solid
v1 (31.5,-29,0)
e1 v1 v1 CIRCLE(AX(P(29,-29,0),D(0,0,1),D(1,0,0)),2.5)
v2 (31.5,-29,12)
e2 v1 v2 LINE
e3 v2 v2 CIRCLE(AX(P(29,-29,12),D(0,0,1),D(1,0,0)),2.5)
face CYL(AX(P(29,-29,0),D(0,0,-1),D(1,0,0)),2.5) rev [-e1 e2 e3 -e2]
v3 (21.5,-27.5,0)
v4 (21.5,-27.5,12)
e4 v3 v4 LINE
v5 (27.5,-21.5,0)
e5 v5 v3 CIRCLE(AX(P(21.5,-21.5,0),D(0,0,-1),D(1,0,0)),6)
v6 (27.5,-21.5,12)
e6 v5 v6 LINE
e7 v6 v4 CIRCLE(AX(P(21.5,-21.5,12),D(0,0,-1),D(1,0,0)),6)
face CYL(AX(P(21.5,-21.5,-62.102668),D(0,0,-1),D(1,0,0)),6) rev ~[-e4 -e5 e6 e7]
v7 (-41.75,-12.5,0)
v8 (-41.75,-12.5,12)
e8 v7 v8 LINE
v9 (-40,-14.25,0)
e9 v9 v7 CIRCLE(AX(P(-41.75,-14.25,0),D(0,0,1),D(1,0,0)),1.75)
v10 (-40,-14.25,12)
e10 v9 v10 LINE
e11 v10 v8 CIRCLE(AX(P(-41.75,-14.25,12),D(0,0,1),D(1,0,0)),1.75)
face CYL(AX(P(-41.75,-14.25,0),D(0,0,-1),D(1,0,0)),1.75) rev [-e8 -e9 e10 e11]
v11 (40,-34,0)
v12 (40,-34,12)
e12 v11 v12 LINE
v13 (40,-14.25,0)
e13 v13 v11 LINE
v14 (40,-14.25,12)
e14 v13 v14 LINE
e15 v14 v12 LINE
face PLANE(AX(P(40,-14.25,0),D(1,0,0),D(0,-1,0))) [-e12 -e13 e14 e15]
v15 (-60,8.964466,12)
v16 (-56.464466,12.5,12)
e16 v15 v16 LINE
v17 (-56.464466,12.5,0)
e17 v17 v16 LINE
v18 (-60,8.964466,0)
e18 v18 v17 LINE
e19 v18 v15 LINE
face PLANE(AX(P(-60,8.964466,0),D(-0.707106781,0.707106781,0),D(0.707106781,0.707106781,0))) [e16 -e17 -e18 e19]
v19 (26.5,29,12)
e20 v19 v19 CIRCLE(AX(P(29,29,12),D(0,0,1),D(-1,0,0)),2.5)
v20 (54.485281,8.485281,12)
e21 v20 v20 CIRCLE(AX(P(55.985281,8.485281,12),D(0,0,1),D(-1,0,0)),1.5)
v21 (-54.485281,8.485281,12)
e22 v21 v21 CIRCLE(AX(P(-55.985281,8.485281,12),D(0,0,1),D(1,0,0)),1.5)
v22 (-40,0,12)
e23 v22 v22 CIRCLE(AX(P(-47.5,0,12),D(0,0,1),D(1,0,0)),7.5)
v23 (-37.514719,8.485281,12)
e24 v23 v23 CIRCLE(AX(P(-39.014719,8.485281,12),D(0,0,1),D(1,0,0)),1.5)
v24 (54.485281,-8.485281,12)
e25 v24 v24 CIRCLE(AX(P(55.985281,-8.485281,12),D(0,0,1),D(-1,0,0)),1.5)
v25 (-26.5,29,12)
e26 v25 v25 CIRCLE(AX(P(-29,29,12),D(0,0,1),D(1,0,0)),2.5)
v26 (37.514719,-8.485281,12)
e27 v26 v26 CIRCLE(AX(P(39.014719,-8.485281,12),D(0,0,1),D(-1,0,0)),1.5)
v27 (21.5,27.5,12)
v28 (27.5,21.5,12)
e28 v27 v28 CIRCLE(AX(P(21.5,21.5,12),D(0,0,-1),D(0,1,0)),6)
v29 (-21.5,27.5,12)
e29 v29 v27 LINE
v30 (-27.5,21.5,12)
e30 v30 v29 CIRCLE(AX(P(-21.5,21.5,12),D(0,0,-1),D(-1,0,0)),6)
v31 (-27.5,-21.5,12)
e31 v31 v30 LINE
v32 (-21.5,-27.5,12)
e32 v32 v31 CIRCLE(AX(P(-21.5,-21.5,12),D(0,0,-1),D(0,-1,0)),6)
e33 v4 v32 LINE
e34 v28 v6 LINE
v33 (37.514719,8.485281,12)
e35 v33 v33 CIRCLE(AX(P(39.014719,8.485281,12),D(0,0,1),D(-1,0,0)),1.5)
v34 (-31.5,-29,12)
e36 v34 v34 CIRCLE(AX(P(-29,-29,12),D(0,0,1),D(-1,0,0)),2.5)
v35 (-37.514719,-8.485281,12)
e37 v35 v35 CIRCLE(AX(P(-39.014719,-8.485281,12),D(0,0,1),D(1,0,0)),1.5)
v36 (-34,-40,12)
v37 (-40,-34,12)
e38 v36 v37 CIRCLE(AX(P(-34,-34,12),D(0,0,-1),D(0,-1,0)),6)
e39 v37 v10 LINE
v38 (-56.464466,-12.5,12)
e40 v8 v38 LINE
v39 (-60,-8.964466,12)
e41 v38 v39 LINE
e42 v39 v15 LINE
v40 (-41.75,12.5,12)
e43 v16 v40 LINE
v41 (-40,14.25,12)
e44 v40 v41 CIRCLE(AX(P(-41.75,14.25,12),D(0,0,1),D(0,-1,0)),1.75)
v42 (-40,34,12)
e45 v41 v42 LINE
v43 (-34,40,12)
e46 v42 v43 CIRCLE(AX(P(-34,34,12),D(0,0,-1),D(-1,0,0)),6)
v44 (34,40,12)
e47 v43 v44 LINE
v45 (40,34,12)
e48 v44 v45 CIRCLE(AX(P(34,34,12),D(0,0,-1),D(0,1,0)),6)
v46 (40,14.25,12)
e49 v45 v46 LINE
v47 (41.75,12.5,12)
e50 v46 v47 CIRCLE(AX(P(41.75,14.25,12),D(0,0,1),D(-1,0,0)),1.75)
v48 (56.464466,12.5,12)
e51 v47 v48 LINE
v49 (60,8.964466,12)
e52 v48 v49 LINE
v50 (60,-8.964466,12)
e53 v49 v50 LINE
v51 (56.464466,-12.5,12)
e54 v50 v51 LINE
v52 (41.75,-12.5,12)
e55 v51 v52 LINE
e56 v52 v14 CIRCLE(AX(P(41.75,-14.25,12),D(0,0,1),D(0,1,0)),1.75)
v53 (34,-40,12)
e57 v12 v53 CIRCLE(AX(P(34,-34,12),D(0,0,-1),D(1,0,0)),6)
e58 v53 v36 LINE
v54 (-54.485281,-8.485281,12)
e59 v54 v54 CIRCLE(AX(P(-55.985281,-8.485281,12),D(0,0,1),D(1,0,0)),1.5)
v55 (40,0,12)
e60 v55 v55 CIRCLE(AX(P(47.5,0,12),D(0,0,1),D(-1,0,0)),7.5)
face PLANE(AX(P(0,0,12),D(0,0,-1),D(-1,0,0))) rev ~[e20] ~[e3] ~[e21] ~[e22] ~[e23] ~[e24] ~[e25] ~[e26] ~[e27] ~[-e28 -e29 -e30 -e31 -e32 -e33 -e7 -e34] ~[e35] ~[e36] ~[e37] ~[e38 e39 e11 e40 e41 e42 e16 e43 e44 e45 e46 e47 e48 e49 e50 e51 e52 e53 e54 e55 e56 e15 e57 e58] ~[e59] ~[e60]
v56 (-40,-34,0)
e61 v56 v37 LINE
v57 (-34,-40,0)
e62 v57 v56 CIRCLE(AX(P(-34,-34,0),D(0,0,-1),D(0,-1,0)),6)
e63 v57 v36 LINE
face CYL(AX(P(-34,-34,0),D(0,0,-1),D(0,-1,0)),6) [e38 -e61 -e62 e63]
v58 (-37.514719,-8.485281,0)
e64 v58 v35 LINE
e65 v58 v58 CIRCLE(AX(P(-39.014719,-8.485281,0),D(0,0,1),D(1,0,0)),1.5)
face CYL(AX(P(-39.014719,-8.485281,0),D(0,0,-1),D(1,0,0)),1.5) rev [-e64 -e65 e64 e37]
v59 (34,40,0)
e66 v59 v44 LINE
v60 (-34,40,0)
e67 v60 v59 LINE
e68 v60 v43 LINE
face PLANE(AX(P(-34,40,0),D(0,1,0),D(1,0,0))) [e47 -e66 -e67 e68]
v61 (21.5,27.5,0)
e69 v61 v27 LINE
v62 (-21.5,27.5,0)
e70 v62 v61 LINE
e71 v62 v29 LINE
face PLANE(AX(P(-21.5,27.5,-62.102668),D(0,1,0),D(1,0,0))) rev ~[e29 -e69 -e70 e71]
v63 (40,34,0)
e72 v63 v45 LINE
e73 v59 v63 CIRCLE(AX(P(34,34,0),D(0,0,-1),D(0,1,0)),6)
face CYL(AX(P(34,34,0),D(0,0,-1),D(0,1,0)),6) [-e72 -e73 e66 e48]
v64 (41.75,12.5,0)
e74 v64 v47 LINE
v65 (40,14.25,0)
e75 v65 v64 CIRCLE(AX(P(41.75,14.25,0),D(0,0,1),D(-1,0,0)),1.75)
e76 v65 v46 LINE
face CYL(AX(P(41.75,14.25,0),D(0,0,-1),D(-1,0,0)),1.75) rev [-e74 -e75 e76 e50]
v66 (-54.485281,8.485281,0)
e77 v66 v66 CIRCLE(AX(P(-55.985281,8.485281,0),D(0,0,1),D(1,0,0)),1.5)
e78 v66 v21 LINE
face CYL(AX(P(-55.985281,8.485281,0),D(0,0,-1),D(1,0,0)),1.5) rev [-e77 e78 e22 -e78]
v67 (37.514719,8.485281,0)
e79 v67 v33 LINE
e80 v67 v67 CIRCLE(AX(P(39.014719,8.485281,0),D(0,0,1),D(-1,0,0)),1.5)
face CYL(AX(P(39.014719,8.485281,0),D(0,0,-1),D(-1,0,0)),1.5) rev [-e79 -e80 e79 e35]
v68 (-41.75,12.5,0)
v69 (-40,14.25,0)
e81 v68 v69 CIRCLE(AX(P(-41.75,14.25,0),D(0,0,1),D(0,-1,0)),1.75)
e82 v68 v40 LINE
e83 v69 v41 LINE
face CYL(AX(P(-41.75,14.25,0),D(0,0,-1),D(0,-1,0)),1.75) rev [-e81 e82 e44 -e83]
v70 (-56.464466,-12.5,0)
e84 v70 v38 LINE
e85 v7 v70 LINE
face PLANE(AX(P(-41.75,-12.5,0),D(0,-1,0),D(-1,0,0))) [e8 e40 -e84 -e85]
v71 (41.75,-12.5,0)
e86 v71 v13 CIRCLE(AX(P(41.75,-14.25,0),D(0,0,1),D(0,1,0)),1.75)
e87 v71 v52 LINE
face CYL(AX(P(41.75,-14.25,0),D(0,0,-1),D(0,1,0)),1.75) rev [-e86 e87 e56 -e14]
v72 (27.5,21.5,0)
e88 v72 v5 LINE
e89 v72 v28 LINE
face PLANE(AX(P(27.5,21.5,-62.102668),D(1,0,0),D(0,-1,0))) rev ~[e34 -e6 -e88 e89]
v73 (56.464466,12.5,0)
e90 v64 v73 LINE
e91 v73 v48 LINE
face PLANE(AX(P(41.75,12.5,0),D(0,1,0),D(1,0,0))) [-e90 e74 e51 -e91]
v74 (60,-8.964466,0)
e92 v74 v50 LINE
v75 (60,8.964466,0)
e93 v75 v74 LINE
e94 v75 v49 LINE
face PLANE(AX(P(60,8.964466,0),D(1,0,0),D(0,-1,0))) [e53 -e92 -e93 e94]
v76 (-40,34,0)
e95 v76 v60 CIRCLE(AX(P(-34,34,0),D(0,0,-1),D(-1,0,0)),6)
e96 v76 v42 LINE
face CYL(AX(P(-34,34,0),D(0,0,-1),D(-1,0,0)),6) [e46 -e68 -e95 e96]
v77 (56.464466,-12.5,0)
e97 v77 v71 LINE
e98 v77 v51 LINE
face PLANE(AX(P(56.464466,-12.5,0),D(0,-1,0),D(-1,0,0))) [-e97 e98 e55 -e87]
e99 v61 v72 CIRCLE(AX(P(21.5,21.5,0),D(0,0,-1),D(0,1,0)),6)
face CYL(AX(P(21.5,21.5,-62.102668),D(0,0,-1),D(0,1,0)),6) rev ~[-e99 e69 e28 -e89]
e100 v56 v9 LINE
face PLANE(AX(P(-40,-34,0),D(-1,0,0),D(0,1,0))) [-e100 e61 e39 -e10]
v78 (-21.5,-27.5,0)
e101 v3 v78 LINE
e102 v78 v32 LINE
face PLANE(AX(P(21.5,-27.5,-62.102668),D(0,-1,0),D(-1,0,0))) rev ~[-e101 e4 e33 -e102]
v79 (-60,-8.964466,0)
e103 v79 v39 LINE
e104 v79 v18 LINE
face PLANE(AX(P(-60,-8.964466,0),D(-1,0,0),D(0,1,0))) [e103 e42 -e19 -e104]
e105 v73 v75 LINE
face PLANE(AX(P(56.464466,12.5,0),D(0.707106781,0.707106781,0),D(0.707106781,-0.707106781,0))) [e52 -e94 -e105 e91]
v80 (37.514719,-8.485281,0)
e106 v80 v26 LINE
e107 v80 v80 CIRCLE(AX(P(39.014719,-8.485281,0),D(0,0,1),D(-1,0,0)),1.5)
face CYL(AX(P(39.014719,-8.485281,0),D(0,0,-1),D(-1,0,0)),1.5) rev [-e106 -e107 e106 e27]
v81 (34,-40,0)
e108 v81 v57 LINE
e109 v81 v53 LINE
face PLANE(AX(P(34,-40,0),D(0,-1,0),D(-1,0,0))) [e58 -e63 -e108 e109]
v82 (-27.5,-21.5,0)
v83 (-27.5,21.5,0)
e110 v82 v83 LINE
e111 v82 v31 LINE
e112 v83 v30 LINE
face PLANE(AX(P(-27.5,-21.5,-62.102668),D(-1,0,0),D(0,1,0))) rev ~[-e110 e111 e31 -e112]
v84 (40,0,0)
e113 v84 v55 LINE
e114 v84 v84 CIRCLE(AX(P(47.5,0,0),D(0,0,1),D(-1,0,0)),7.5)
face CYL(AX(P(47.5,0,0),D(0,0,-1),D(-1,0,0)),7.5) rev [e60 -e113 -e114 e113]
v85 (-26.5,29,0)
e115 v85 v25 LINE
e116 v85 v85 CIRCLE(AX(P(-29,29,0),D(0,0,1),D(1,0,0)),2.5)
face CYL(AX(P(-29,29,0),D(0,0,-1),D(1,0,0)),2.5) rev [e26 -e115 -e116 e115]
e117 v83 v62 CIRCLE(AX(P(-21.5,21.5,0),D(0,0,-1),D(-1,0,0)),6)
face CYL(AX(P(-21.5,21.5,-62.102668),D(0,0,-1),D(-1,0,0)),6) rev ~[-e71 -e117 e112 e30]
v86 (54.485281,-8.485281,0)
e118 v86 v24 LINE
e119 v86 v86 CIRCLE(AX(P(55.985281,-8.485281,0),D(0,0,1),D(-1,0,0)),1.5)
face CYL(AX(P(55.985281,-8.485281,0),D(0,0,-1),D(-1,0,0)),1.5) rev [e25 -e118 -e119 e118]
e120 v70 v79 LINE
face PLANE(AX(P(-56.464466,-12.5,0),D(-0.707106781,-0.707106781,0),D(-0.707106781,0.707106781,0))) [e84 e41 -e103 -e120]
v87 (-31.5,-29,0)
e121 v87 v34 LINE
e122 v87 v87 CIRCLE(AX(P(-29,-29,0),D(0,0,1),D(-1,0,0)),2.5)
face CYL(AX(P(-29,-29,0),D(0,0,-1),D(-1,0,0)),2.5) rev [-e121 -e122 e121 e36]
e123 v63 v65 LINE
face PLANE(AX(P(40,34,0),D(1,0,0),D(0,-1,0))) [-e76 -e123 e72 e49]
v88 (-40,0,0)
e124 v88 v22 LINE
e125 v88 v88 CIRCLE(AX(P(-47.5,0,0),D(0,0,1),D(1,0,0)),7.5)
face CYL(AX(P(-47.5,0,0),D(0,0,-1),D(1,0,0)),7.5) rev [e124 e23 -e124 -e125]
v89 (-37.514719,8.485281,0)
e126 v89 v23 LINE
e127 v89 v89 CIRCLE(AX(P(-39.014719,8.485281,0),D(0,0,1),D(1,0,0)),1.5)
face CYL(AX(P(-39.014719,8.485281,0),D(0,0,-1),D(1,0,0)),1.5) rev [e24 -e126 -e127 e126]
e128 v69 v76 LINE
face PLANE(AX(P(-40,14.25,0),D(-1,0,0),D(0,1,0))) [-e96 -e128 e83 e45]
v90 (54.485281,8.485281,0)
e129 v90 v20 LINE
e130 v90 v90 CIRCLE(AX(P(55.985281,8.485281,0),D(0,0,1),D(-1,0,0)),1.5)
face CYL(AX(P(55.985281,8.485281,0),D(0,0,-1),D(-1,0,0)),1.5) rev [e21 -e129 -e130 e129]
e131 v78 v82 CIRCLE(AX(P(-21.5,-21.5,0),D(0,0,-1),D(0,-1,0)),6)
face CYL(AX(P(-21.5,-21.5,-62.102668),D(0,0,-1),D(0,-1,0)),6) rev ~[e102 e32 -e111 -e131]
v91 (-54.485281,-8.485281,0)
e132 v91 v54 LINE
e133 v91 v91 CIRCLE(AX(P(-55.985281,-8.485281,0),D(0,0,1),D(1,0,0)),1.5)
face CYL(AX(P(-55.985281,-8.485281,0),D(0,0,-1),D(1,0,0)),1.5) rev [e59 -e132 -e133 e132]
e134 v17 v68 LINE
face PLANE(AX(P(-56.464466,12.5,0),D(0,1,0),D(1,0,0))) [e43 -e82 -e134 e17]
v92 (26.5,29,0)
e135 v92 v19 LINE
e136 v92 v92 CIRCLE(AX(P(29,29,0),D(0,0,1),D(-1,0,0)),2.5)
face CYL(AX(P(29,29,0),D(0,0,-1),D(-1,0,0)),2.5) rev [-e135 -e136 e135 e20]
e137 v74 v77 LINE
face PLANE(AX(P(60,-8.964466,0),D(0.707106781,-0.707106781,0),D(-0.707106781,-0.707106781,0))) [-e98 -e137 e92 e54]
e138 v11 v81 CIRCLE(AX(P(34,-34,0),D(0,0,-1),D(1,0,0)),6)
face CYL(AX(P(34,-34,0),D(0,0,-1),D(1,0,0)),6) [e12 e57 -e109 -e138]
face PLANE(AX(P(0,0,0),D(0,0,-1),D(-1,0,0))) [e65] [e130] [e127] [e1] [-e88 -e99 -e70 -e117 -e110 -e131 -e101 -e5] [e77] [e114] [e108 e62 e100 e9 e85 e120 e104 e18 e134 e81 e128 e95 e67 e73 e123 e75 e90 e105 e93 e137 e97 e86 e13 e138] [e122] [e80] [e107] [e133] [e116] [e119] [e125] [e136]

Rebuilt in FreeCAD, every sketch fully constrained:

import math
import FreeCAD as App
import Part
import Sketcher

V = App.Vector
Q = App.Units.Quantity

doc = App.newDocument("Part")
params = doc.addObject("Spreadsheet::Sheet", "Params")
for row, (alias, value) in enumerate([
    ("sketch1_diameter", "5 mm"),
    ("sketch1_diameter2", "3 mm"),
    ("sketch1_diameter3", "15 mm"),
    ("sketch1_radius", "6 mm"),
    ("sketch1_width", "68 mm"),
    ("pad1_length", "12 mm"),
    ("sketch2_radius", "6 mm"),
    ("sketch2_width", "43 mm"),
], start=1):
    params.set(f"A{row}", alias)
    params.set(f"B{row}", "=" + value)
    params.setAlias(f"B{row}", alias)

body = doc.addObject("PartDesign::Body", "Body")

# Sketch on XY plane
sketch1 = body.newObject("Sketcher::SketchObject", "Sketch")
sketch1.AttachmentSupport = (doc.getObject("XY_Plane"), [""])
sketch1.MapMode = "FlatFace"
sketch1.addGeometry([
    Part.LineSegment(V(-41.75, 12.5, 0), V(-56.464466, 12.5, 0)),  # 0
    Part.LineSegment(V(-56.464466, 12.5, 0), V(-60, 8.964466, 0)),  # 1
    Part.LineSegment(V(-60, 8.964466, 0), V(-60, -8.964466, 0)),  # 2
    Part.LineSegment(V(-60, -8.964466, 0), V(-56.464466, -12.5, 0)),  # 3
    Part.LineSegment(V(-56.464466, -12.5, 0), V(-41.75, -12.5, 0)),  # 4
    Part.ArcOfCircle(Part.Circle(V(-41.75, -14.25, 0), V(0, 0, 1), 1.75), math.radians(0), math.radians(90)),  # 5
    Part.LineSegment(V(-40, -14.25, 0), V(-40, -34, 0)),  # 6
    Part.ArcOfCircle(Part.Circle(V(-34, -34, 0), V(0, 0, 1), 6), math.radians(180), math.radians(270)),  # 7
    Part.LineSegment(V(-34, -40, 0), V(34, -40, 0)),  # 8
    Part.ArcOfCircle(Part.Circle(V(34, -34, 0), V(0, 0, 1), 6), math.radians(-90), math.radians(0)),  # 9
    Part.LineSegment(V(40, -34, 0), V(40, -14.25, 0)),  # 10
    Part.ArcOfCircle(Part.Circle(V(41.75, -14.25, 0), V(0, 0, 1), 1.75), math.radians(90), math.radians(180)),  # 11
    Part.LineSegment(V(41.75, -12.5, 0), V(56.464466, -12.5, 0)),  # 12
    Part.LineSegment(V(56.464466, -12.5, 0), V(60, -8.964466, 0)),  # 13
    Part.LineSegment(V(60, -8.964466, 0), V(60, 8.964466, 0)),  # 14
    Part.LineSegment(V(60, 8.964466, 0), V(56.464466, 12.5, 0)),  # 15
    Part.LineSegment(V(56.464466, 12.5, 0), V(41.75, 12.5, 0)),  # 16
    Part.ArcOfCircle(Part.Circle(V(41.75, 14.25, 0), V(0, 0, 1), 1.75), math.radians(180), math.radians(270)),  # 17
    Part.LineSegment(V(40, 14.25, 0), V(40, 34, 0)),  # 18
    Part.ArcOfCircle(Part.Circle(V(34, 34, 0), V(0, 0, 1), 6), math.radians(0), math.radians(90)),  # 19
    Part.LineSegment(V(34, 40, 0), V(-34, 40, 0)),  # 20
    Part.ArcOfCircle(Part.Circle(V(-34, 34, 0), V(0, 0, 1), 6), math.radians(90), math.radians(180)),  # 21
    Part.LineSegment(V(-40, 34, 0), V(-40, 14.25, 0)),  # 22
    Part.ArcOfCircle(Part.Circle(V(-41.75, 14.25, 0), V(0, 0, 1), 1.75), math.radians(-90), math.radians(0)),  # 23
    Part.Circle(V(29, -29, 0), V(0, 0, 1), 2.5),  # 24
    Part.Circle(V(55.985281, -8.485281, 0), V(0, 0, 1), 1.5),  # 25
    Part.Circle(V(39.014719, -8.485281, 0), V(0, 0, 1), 1.5),  # 26
    Part.Circle(V(-29, -29, 0), V(0, 0, 1), 2.5),  # 27
    Part.Circle(V(-39.014719, -8.485281, 0), V(0, 0, 1), 1.5),  # 28
    Part.Circle(V(-55.985281, -8.485281, 0), V(0, 0, 1), 1.5),  # 29
    Part.Circle(V(47.5, 0, 0), V(0, 0, 1), 7.5),  # 30
    Part.Circle(V(55.985281, 8.485281, 0), V(0, 0, 1), 1.5),  # 31
    Part.Circle(V(39.014719, 8.485281, 0), V(0, 0, 1), 1.5),  # 32
    Part.Circle(V(29, 29, 0), V(0, 0, 1), 2.5),  # 33
    Part.Circle(V(-47.5, 0, 0), V(0, 0, 1), 7.5),  # 34
    Part.Circle(V(-39.014719, 8.485281, 0), V(0, 0, 1), 1.5),  # 35
    Part.Circle(V(-55.985281, 8.485281, 0), V(0, 0, 1), 1.5),  # 36
    Part.Circle(V(-29, 29, 0), V(0, 0, 1), 2.5),  # 37
], False)
sketch1.addConstraint([
    Sketcher.Constraint("Coincident", 0, 2, 1, 1),
    Sketcher.Constraint("Coincident", 1, 2, 2, 1),
    Sketcher.Constraint("Coincident", 2, 2, 3, 1),
    Sketcher.Constraint("Coincident", 3, 2, 4, 1),
    Sketcher.Constraint("Tangent", 4, 2, 5, 2),
    Sketcher.Constraint("Tangent", 5, 1, 6, 1),
    Sketcher.Constraint("Tangent", 6, 2, 7, 1),
    Sketcher.Constraint("Tangent", 7, 2, 8, 1),
    Sketcher.Constraint("Tangent", 8, 2, 9, 1),
    Sketcher.Constraint("Tangent", 9, 2, 10, 1),
    Sketcher.Constraint("Tangent", 10, 2, 11, 2),
    Sketcher.Constraint("Tangent", 11, 1, 12, 1),
    Sketcher.Constraint("Coincident", 12, 2, 13, 1),
    Sketcher.Constraint("Coincident", 13, 2, 14, 1),
    Sketcher.Constraint("Coincident", 14, 2, 15, 1),
    Sketcher.Constraint("Coincident", 15, 2, 16, 1),
    Sketcher.Constraint("Tangent", 16, 2, 17, 2),
    Sketcher.Constraint("Tangent", 17, 1, 18, 1),
    Sketcher.Constraint("Tangent", 18, 2, 19, 1),
    Sketcher.Constraint("Tangent", 19, 2, 20, 1),
    Sketcher.Constraint("Tangent", 20, 2, 21, 1),
    Sketcher.Constraint("Tangent", 21, 2, 22, 1),
    Sketcher.Constraint("Tangent", 22, 2, 23, 2),
    Sketcher.Constraint("Tangent", 23, 1, 0, 1),
    Sketcher.Constraint("Horizontal", 0),
    Sketcher.Constraint("Vertical", 2),
    Sketcher.Constraint("Horizontal", 4),
    Sketcher.Constraint("Vertical", 6),
    Sketcher.Constraint("Horizontal", 8),
    Sketcher.Constraint("Vertical", 10),
    Sketcher.Constraint("Horizontal", 12),
    Sketcher.Constraint("Vertical", 14),
    Sketcher.Constraint("Horizontal", 16),
    Sketcher.Constraint("Vertical", 18),
    Sketcher.Constraint("Horizontal", 20),
    Sketcher.Constraint("Vertical", 22),
    Sketcher.Constraint("Equal", 7, 9),
    Sketcher.Constraint("Equal", 5, 11),
    Sketcher.Constraint("Equal", 11, 17),
    Sketcher.Constraint("Equal", 9, 19),
    Sketcher.Constraint("Equal", 19, 21),
    Sketcher.Constraint("Equal", 17, 23),
    Sketcher.Constraint("Equal", 25, 26),
    Sketcher.Constraint("Equal", 24, 27),
    Sketcher.Constraint("Equal", 26, 28),
    Sketcher.Constraint("Equal", 28, 29),
    Sketcher.Constraint("Equal", 29, 31),
    Sketcher.Constraint("Equal", 31, 32),
    Sketcher.Constraint("Equal", 27, 33),
    Sketcher.Constraint("Equal", 30, 34),
    Sketcher.Constraint("Equal", 32, 35),
    Sketcher.Constraint("Equal", 35, 36),
    Sketcher.Constraint("Equal", 33, 37),
    Sketcher.Constraint("Symmetric", 5, 3, 17, 3, -1, 1),
    Sketcher.Constraint("Symmetric", 9, 3, 21, 3, -1, 1),
    Sketcher.Constraint("Symmetric", 29, 3, 31, 3, -1, 1),
    Sketcher.Constraint("Symmetric", 28, 3, 32, 3, -1, 1),
    Sketcher.Constraint("Symmetric", 27, 3, 33, 3, -1, 1),
    Sketcher.Constraint("Symmetric", 30, 3, 34, 3, -1, 1),
    Sketcher.Constraint("Symmetric", 26, 3, 35, 3, -1, 1),
    Sketcher.Constraint("Symmetric", 25, 3, 36, 3, -1, 1),
    Sketcher.Constraint("Symmetric", 24, 3, 37, 3, -1, 1),
    Sketcher.Constraint("Symmetric", 0, 2, 12, 2, -1, 1),
    Sketcher.Constraint("Symmetric", 1, 2, 13, 2, -1, 1),
    Sketcher.Constraint("Symmetric", 5, 3, 11, 3, -2),
    Sketcher.Constraint("Symmetric", 24, 3, 27, 3, -2),
    Sketcher.Constraint("Symmetric", 26, 3, 28, 3, -2),
    Sketcher.Constraint("Symmetric", 25, 3, 29, 3, -2),
    Sketcher.Constraint("PointOnObject", 30, 3, -1),
    Sketcher.Constraint("Perpendicular", 1, 3),
    Sketcher.Constraint("Perpendicular", 13, 15),
    Sketcher.Constraint("Horizontal", 25, 3, 26, 3),
    Sketcher.Constraint("Horizontal", 2, 2, 13, 2),
    Sketcher.Constraint("Horizontal", 1, 2, 14, 2),
    Sketcher.Constraint("Vertical", 0, 2, 3, 2),
    Sketcher.Constraint("Diameter", 24, Q("5 mm")),
    Sketcher.Constraint("Diameter", 25, Q("3 mm")),
    Sketcher.Constraint("Diameter", 30, Q("15 mm")),
    Sketcher.Constraint("Radius", 7, Q("6 mm")),
    Sketcher.Constraint("DistanceX", 8, 1, 8, 2, Q("68 mm")),
    Sketcher.Constraint("Radius", 5, Q("1.75 mm")),
    Sketcher.Constraint("Distance", 1, Q("5 mm")),
    Sketcher.Constraint("DistanceY", 7, 3, -1, 1, Q("34 mm")),
    Sketcher.Constraint("DistanceX", -1, 1, 24, 3, Q("29 mm")),
    Sketcher.Constraint("DistanceY", 24, 3, -1, 1, Q("29 mm")),
    Sketcher.Constraint("DistanceX", 1, 2, -1, 1, Q("60 mm")),
    Sketcher.Constraint("DistanceY", 6, 2, 6, 1, Q("19.75 mm")),
    Sketcher.Constraint("DistanceX", -1, 1, 30, 3, Q("47.5 mm")),
    Sketcher.Constraint("DistanceX", -1, 1, 25, 3, Q("55.985281 mm")),
    Sketcher.Constraint("DistanceY", 25, 3, -1, 1, Q("8.485281 mm")),
    Sketcher.Constraint("DistanceX", -1, 1, 26, 3, Q("39.014719 mm")),
])
sketch1.setExpression("Constraints[75]", "Params.sketch1_diameter")
sketch1.setExpression("Constraints[76]", "Params.sketch1_diameter2")
sketch1.setExpression("Constraints[77]", "Params.sketch1_diameter3")
sketch1.setExpression("Constraints[78]", "Params.sketch1_radius")
sketch1.setExpression("Constraints[79]", "Params.sketch1_width")
pad1 = body.newObject("PartDesign::Pad", "Pad")
pad1.Profile = sketch1
pad1.setExpression("Length", "Params.pad1_length")

# Sketch on XY plane
sketch2 = body.newObject("Sketcher::SketchObject", "Sketch001")
sketch2.AttachmentSupport = (doc.getObject("XY_Plane"), [""])
sketch2.MapMode = "FlatFace"
sketch2.AttachmentOffset = App.Placement(V(0, 0, 12), App.Rotation())
sketch2.addGeometry([
    Part.LineSegment(V(21.5, 27.5, 0), V(-21.5, 27.5, 0)),  # 0
    Part.ArcOfCircle(Part.Circle(V(-21.5, 21.5, 0), V(0, 0, 1), 6), math.radians(90), math.radians(180)),  # 1
    Part.LineSegment(V(-27.5, 21.5, 0), V(-27.5, -21.5, 0)),  # 2
    Part.ArcOfCircle(Part.Circle(V(-21.5, -21.5, 0), V(0, 0, 1), 6), math.radians(180), math.radians(270)),  # 3
    Part.LineSegment(V(-21.5, -27.5, 0), V(21.5, -27.5, 0)),  # 4
    Part.ArcOfCircle(Part.Circle(V(21.5, -21.5, 0), V(0, 0, 1), 6), math.radians(-90), math.radians(0)),  # 5
    Part.LineSegment(V(27.5, -21.5, 0), V(27.5, 21.5, 0)),  # 6
    Part.ArcOfCircle(Part.Circle(V(21.5, 21.5, 0), V(0, 0, 1), 6), math.radians(0), math.radians(90)),  # 7
], False)
sketch2.addConstraint([
    Sketcher.Constraint("Tangent", 0, 2, 1, 1),
    Sketcher.Constraint("Tangent", 1, 2, 2, 1),
    Sketcher.Constraint("Tangent", 2, 2, 3, 1),
    Sketcher.Constraint("Tangent", 3, 2, 4, 1),
    Sketcher.Constraint("Tangent", 4, 2, 5, 1),
    Sketcher.Constraint("Tangent", 5, 2, 6, 1),
    Sketcher.Constraint("Tangent", 6, 2, 7, 1),
    Sketcher.Constraint("Tangent", 7, 2, 0, 1),
    Sketcher.Constraint("Horizontal", 0),
    Sketcher.Constraint("Vertical", 2),
    Sketcher.Constraint("Horizontal", 4),
    Sketcher.Constraint("Vertical", 6),
    Sketcher.Constraint("Equal", 1, 3),
    Sketcher.Constraint("Equal", 3, 5),
    Sketcher.Constraint("Equal", 5, 7),
    Sketcher.Constraint("Symmetric", 1, 3, 5, 3, -1, 1),
    Sketcher.Constraint("Equal", 4, 2),
    Sketcher.Constraint("Radius", 1, Q("6 mm")),
    Sketcher.Constraint("DistanceX", 0, 2, 0, 1, Q("43 mm")),
])
sketch2.setExpression("Constraints[17]", "Params.sketch2_radius")
sketch2.setExpression("Constraints[18]", "Params.sketch2_width")
pocket1 = body.newObject("PartDesign::Pocket", "Pocket")
pocket1.Profile = sketch2
pocket1.Type = "ThroughAll"
pocket1.Midplane = True

doc.recompute()
